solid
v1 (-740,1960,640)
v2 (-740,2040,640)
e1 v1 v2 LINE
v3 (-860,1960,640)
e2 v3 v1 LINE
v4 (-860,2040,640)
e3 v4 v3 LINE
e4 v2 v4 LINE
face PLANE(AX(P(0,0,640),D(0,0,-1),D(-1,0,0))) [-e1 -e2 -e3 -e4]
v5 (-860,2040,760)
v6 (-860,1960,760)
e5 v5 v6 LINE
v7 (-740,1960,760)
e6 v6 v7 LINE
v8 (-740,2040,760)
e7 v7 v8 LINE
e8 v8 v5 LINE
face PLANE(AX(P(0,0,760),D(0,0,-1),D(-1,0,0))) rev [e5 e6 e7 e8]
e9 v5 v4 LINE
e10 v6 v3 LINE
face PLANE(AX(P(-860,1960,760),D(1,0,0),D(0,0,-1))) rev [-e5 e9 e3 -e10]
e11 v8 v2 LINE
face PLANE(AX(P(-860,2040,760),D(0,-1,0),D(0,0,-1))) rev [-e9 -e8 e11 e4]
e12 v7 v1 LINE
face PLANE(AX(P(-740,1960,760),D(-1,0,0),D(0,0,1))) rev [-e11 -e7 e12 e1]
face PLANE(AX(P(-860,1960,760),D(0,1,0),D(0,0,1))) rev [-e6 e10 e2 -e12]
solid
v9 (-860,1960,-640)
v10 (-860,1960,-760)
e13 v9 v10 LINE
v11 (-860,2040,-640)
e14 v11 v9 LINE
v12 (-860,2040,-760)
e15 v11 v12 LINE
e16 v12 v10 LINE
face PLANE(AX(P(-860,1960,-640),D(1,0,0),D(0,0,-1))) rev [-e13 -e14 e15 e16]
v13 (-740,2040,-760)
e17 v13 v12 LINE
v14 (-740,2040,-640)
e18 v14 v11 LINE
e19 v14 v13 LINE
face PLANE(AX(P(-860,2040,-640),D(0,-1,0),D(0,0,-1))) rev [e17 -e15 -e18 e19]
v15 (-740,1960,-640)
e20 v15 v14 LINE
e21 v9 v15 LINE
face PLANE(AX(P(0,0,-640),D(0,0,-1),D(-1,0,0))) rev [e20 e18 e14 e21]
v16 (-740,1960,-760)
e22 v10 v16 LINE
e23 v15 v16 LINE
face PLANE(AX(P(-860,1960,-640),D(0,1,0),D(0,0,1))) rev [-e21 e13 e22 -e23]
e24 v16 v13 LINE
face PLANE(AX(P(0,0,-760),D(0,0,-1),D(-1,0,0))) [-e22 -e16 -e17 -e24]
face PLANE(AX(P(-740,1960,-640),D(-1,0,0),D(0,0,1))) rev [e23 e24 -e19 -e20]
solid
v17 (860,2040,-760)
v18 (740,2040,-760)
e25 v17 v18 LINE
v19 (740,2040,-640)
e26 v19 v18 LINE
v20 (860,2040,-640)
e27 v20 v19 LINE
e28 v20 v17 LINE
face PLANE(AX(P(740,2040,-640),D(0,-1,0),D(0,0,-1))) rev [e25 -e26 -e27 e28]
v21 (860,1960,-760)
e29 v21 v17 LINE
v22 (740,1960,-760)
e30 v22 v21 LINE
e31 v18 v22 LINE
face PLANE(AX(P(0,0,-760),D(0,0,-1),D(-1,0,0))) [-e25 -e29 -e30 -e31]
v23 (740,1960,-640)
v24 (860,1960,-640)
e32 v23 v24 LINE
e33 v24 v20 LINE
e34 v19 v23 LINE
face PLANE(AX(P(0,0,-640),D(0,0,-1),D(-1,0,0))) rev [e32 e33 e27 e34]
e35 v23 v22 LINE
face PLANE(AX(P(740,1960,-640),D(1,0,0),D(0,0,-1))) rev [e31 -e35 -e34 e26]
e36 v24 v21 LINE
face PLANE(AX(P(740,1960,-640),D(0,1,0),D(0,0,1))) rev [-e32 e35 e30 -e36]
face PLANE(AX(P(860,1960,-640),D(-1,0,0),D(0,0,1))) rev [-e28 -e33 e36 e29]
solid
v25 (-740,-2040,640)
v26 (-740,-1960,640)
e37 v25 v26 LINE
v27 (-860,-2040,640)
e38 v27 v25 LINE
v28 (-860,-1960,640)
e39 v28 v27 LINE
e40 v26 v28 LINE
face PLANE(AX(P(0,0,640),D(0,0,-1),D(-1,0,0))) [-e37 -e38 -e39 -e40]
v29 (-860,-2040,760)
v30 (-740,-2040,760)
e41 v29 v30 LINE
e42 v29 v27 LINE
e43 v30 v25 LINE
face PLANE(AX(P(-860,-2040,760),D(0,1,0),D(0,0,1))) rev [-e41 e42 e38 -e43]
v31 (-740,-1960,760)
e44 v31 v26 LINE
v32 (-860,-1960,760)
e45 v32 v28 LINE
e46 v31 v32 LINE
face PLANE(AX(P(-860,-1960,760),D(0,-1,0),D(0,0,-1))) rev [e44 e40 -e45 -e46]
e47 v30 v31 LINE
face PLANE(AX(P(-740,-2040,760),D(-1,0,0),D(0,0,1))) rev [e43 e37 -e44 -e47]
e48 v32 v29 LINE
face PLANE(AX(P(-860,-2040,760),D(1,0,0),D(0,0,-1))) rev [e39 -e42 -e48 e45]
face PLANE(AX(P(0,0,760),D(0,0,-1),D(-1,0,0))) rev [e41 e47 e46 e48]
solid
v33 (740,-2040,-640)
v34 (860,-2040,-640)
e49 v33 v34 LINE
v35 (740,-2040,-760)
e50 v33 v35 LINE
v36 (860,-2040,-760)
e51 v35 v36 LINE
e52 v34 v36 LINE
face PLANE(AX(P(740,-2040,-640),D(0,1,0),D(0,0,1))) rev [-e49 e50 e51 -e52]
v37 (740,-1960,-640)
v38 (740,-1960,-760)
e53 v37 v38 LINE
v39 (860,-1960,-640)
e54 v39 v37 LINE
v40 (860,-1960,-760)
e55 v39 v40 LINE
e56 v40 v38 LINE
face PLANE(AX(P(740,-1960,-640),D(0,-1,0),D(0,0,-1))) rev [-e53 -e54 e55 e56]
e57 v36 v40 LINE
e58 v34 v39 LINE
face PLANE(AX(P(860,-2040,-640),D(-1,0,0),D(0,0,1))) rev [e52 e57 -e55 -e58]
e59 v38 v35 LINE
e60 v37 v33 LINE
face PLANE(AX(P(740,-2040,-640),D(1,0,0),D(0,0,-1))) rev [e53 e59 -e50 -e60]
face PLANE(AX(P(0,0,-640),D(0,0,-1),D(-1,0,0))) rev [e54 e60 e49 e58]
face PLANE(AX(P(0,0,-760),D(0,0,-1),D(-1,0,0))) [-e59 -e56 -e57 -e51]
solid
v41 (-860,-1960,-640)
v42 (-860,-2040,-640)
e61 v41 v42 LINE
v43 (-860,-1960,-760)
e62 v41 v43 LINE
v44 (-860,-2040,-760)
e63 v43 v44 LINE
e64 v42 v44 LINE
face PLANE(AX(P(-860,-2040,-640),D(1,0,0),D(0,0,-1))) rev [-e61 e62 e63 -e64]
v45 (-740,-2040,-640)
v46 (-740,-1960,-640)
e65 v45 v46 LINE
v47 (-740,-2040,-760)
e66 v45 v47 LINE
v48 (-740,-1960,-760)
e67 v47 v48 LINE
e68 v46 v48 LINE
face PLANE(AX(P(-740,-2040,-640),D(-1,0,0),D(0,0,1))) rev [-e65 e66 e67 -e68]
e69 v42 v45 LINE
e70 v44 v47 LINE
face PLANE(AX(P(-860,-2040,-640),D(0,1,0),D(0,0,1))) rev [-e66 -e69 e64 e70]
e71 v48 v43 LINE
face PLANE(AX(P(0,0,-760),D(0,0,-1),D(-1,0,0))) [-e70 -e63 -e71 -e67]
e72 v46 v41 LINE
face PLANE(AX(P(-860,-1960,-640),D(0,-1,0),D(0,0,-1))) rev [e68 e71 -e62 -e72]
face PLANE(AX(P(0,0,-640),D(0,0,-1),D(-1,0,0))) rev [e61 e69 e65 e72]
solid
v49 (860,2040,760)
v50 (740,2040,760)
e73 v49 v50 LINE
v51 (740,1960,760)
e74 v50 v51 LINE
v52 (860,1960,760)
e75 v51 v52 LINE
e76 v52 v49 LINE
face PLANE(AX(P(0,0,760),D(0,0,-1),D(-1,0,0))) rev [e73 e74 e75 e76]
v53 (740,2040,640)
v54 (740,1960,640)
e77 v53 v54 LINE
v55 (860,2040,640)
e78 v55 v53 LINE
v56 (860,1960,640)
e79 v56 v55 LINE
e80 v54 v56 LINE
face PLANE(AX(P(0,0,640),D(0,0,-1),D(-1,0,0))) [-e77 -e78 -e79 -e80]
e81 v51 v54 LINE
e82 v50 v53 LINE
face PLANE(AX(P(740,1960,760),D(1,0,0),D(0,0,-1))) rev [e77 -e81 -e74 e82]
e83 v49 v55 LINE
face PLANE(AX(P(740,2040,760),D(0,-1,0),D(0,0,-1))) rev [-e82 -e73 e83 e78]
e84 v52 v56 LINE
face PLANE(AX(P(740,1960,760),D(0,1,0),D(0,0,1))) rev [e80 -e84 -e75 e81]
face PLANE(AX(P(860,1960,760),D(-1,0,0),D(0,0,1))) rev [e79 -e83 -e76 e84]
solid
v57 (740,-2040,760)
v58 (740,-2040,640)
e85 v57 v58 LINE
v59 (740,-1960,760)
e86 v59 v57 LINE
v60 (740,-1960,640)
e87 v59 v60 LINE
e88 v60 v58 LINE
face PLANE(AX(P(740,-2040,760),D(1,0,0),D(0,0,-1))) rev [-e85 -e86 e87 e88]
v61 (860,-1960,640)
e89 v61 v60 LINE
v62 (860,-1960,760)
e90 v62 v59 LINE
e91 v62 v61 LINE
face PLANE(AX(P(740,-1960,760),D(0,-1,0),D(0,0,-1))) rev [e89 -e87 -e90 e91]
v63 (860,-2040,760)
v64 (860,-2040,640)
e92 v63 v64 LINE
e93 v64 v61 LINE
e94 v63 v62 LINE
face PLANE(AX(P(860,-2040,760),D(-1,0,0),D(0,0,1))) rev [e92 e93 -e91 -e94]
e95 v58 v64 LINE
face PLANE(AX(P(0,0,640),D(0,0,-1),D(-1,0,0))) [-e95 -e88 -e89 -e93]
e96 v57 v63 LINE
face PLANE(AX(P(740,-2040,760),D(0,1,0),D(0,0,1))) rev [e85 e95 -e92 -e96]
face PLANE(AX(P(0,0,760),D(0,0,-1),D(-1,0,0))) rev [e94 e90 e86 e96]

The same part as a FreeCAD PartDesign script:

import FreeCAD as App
import Part
import Sketcher


def add_polygon(sketch, points):
    """Adds a closed chain of lines whose ends are joined by coincident constraints."""
    first, n = sketch.GeometryCount, len(points)
    for a, b in zip(points, points[1:] + points[:1]):
        sketch.addGeometry(Part.LineSegment(App.Vector(*a, 0), App.Vector(*b, 0)), False)
    for i in range(n):
        sketch.addConstraint(Sketcher.Constraint("Coincident", first + i, 2, first + (i + 1) % n, 1))

doc = App.newDocument("Part")
body = doc.addObject("PartDesign::Body", "Body")

# Sketch on XY plane
sketch1 = body.newObject("Sketcher::SketchObject", "Sketch")
sketch1.AttachmentSupport = (doc.getObject("XY_Plane"), [""])
sketch1.MapMode = "FlatFace"
sketch1.AttachmentOffset = App.Placement(App.Vector(0, 0, -760), App.Rotation())
add_polygon(sketch1, [(-860, -1960), (-860, -2040), (-740, -2040), (-740, -1960)])  # lines 0-3
sketch1.addConstraint([
    Sketcher.Constraint("Vertical", 0),
    Sketcher.Constraint("Horizontal", 1),
    Sketcher.Constraint("Vertical", 2),
    Sketcher.Constraint("Horizontal", 3),
    Sketcher.Constraint("DistanceX", 1, 1, 1, 2, 120.0),
    Sketcher.Constraint("DistanceY", 0, 2, 0, 1, 80.0),
    Sketcher.Constraint("DistanceX", 0, 2, -1, 1, 860.0),
    Sketcher.Constraint("DistanceY", 0, 2, -1, 1, 2040.0),
])
pad1 = body.newObject("PartDesign::Pad", "Pad")
pad1.Profile = sketch1
pad1.Length = 120
body2 = doc.addObject("PartDesign::Body", "Body001")

# Sketch on XY plane
sketch2 = body2.newObject("Sketcher::SketchObject", "Sketch001")
sketch2.AttachmentSupport = (doc.getObject("XY_Plane001"), [""])
sketch2.MapMode = "FlatFace"
sketch2.AttachmentOffset = App.Placement(App.Vector(0, 0, 640), App.Rotation())
add_polygon(sketch2, [(-860, -1960), (-860, -2040), (-740, -2040), (-740, -1960)])  # lines 0-3
sketch2.addConstraint([
    Sketcher.Constraint("Vertical", 0),
    Sketcher.Constraint("Horizontal", 1),
    Sketcher.Constraint("Vertical", 2),
    Sketcher.Constraint("Horizontal", 3),
    Sketcher.Constraint("DistanceX", 1, 1, 1, 2, 120.0),
    Sketcher.Constraint("DistanceY", 0, 2, 0, 1, 80.0),
    Sketcher.Constraint("DistanceX", 0, 2, -1, 1, 860.0),
    Sketcher.Constraint("DistanceY", 0, 2, -1, 1, 2040.0),
])
pad2 = body2.newObject("PartDesign::Pad", "Pad001")
pad2.Profile = sketch2
pad2.Length = 120
body3 = doc.addObject("PartDesign::Body", "Body002")

# Sketch on XY plane
sketch3 = body3.newObject("Sketcher::SketchObject", "Sketch002")
sketch3.AttachmentSupport = (doc.getObject("XY_Plane002"), [""])
sketch3.MapMode = "FlatFace"
sketch3.AttachmentOffset = App.Placement(App.Vector(0, 0, -760), App.Rotation())
add_polygon(sketch3, [(-860, 2040), (-860, 1960), (-740, 1960), (-740, 2040)])  # lines 0-3
sketch3.addConstraint([
    Sketcher.Constraint("Vertical", 0),
    Sketcher.Constraint("Horizontal", 1),
    Sketcher.Constraint("Vertical", 2),
    Sketcher.Constraint("Horizontal", 3),
    Sketcher.Constraint("DistanceX", 1, 1, 1, 2, 120.0),
    Sketcher.Constraint("DistanceY", 0, 2, 0, 1, 80.0),
    Sketcher.Constraint("DistanceX", 0, 2, -1, 1, 860.0),
    Sketcher.Constraint("DistanceY", -1, 1, 0, 2, 1960.0),
])
pad3 = body3.newObject("PartDesign::Pad", "Pad002")
pad3.Profile = sketch3
pad3.Length = 120
body4 = doc.addObject("PartDesign::Body", "Body003")

# Sketch on XY plane
sketch4 = body4.newObject("Sketcher::SketchObject", "Sketch003")
sketch4.AttachmentSupport = (doc.getObject("XY_Plane003"), [""])
sketch4.MapMode = "FlatFace"
sketch4.AttachmentOffset = App.Placement(App.Vector(0, 0, 640), App.Rotation())
add_polygon(sketch4, [(-860, 2040), (-860, 1960), (-740, 1960), (-740, 2040)])  # lines 0-3
sketch4.addConstraint([
    Sketcher.Constraint("Vertical", 0),
    Sketcher.Constraint("Horizontal", 1),
    Sketcher.Constraint("Vertical", 2),
    Sketcher.Constraint("Horizontal", 3),
    Sketcher.Constraint("DistanceX", 1, 1, 1, 2, 120.0),
    Sketcher.Constraint("DistanceY", 0, 2, 0, 1, 80.0),
    Sketcher.Constraint("DistanceX", 0, 2, -1, 1, 860.0),
    Sketcher.Constraint("DistanceY", -1, 1, 0, 2, 1960.0),
])
pad4 = body4.newObject("PartDesign::Pad", "Pad003")
pad4.Profile = sketch4
pad4.Length = 120
body5 = doc.addObject("PartDesign::Body", "Body004")

# Sketch on XY plane
sketch5 = body5.newObject("Sketcher::SketchObject", "Sketch004")
sketch5.AttachmentSupport = (doc.getObject("XY_Plane004"), [""])
sketch5.MapMode = "FlatFace"
sketch5.AttachmentOffset = App.Placement(App.Vector(0, 0, -760), App.Rotation())
add_polygon(sketch5, [(740, -1960), (740, -2040), (860, -2040), (860, -1960)])  # lines 0-3
sketch5.addConstraint([
    Sketcher.Constraint("Vertical", 0),
    Sketcher.Constraint("Horizontal", 1),
    Sketcher.Constraint("Vertical", 2),
    Sketcher.Constraint("Horizontal", 3),
    Sketcher.Constraint("DistanceX", 1, 1, 1, 2, 120.0),
    Sketcher.Constraint("DistanceY", 0, 2, 0, 1, 80.0),
    Sketcher.Constraint("DistanceX", -1, 1, 0, 2, 740.0),
    Sketcher.Constraint("DistanceY", 0, 2, -1, 1, 2040.0),
])
pad5 = body5.newObject("PartDesign::Pad", "Pad004")
pad5.Profile = sketch5
pad5.Length = 120
body6 = doc.addObject("PartDesign::Body", "Body005")

# Sketch on XY plane
sketch6 = body6.newObject("Sketcher::SketchObject", "Sketch005")
sketch6.AttachmentSupport = (doc.getObject("XY_Plane005"), [""])
sketch6.MapMode = "FlatFace"
sketch6.AttachmentOffset = App.Placement(App.Vector(0, 0, 640), App.Rotation())
add_polygon(sketch6, [(740, -1960), (740, -2040), (860, -2040), (860, -1960)])  # lines 0-3
sketch6.addConstraint([
    Sketcher.Constraint("Vertical", 0),
    Sketcher.Constraint("Horizontal", 1),
    Sketcher.Constraint("Vertical", 2),
    Sketcher.Constraint("Horizontal", 3),
    Sketcher.Constraint("DistanceX", 1, 1, 1, 2, 120.0),
    Sketcher.Constraint("DistanceY", 0, 2, 0, 1, 80.0),
    Sketcher.Constraint("DistanceX", -1, 1, 0, 2, 740.0),
    Sketcher.Constraint("DistanceY", 0, 2, -1, 1, 2040.0),
])
pad6 = body6.newObject("PartDesign::Pad", "Pad005")
pad6.Profile = sketch6
pad6.Length = 120
body7 = doc.addObject("PartDesign::Body", "Body006")

# Sketch on XY plane
sketch7 = body7.newObject("Sketcher::SketchObject", "Sketch006")
sketch7.AttachmentSupport = (doc.getObject("XY_Plane006"), [""])
sketch7.MapMode = "FlatFace"
sketch7.AttachmentOffset = App.Placement(App.Vector(0, 0, -760), App.Rotation())
add_polygon(sketch7, [(740, 2040), (740, 1960), (860, 1960), (860, 2040)])  # lines 0-3
sketch7.addConstraint([
    Sketcher.Constraint("Vertical", 0),
    Sketcher.Constraint("Horizontal", 1),
    Sketcher.Constraint("Vertical", 2),
    Sketcher.Constraint("Horizontal", 3),
    Sketcher.Constraint("DistanceX", 1, 1, 1, 2, 120.0),
    Sketcher.Constraint("DistanceY", 0, 2, 0, 1, 80.0),
    Sketcher.Constraint("DistanceX", -1, 1, 0, 2, 740.0),
    Sketcher.Constraint("DistanceY", -1, 1, 0, 2, 1960.0),
])
pad7 = body7.newObject("PartDesign::Pad", "Pad006")
pad7.Profile = sketch7
pad7.Length = 120
body8 = doc.addObject("PartDesign::Body", "Body007")

# Sketch on XY plane
sketch8 = body8.newObject("Sketcher::SketchObject", "Sketch007")
sketch8.AttachmentSupport = (doc.getObject("XY_Plane007"), [""])
sketch8.MapMode = "FlatFace"
sketch8.AttachmentOffset = App.Placement(App.Vector(0, 0, 640), App.Rotation())
add_polygon(sketch8, [(740, 2040), (740, 1960), (860, 1960), (860, 2040)])  # lines 0-3
sketch8.addConstraint([
    Sketcher.Constraint("Vertical", 0),
    Sketcher.Constraint("Horizontal", 1),
    Sketcher.Constraint("Vertical", 2),
    Sketcher.Constraint("Horizontal", 3),
    Sketcher.Constraint("DistanceX", 1, 1, 1, 2, 120.0),
    Sketcher.Constraint("DistanceY", 0, 2, 0, 1, 80.0),
    Sketcher.Constraint("DistanceX", -1, 1, 0, 2, 740.0),
    Sketcher.Constraint("DistanceY", -1, 1, 0, 2, 1960.0),
])
pad8 = body8.newObject("PartDesign::Pad", "Pad007")
pad8.Profile = sketch8
pad8.Length = 120

doc.recompute()
